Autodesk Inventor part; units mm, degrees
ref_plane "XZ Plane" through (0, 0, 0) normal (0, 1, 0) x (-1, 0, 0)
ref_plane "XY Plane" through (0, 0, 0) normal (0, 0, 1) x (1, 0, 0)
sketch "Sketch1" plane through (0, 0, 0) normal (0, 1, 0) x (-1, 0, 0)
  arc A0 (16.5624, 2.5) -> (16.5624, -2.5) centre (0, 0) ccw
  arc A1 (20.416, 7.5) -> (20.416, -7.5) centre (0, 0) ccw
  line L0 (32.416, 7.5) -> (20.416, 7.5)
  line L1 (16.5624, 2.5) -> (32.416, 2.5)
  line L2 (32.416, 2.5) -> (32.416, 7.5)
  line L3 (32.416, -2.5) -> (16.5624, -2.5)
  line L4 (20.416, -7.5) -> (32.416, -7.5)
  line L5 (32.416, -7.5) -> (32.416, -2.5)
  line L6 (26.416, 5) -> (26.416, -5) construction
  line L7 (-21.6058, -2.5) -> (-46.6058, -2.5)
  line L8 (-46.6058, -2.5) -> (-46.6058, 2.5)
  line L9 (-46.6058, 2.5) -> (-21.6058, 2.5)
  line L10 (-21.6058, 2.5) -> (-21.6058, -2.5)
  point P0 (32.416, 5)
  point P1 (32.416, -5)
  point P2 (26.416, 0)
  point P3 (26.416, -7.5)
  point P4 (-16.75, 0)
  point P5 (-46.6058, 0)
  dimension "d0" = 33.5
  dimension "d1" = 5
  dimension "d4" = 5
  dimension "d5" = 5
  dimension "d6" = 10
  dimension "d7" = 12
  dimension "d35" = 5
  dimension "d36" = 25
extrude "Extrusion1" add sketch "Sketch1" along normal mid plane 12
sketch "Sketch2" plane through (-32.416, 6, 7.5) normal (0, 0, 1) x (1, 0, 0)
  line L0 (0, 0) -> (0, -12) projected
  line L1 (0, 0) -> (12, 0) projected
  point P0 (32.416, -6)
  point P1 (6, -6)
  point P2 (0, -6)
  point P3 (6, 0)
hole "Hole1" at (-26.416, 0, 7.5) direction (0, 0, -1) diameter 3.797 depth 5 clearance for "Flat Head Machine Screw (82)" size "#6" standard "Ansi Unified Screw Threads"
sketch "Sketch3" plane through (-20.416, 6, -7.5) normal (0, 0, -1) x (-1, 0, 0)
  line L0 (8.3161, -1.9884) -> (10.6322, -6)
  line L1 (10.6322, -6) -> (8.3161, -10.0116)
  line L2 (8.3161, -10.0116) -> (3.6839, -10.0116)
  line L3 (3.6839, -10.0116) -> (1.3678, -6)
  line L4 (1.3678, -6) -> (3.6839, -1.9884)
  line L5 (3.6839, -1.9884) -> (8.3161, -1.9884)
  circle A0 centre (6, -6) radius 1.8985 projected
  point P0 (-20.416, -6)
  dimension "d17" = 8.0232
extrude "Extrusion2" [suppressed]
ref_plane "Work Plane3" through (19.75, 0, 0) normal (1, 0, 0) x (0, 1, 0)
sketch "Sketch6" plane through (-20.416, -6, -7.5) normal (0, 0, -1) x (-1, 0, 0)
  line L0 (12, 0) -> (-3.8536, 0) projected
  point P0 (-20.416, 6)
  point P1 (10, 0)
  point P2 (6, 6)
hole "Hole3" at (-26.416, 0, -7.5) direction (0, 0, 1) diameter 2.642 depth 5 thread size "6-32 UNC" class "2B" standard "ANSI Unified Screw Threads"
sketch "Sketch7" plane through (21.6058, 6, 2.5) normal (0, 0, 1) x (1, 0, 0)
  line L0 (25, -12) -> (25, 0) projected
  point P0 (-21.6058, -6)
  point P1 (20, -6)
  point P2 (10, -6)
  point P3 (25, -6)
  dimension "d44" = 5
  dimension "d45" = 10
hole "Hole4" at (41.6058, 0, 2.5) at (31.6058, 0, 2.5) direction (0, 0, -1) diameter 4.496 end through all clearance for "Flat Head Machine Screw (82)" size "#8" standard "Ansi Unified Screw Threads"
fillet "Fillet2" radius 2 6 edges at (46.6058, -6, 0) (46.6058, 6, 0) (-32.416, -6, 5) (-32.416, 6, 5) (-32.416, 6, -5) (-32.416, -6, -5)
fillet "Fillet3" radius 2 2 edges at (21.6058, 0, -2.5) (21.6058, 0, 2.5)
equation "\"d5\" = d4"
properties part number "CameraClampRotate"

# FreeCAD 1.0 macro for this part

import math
import FreeCAD as App
import Part
import Sketcher


def edges_at(feature, points):
    """Names of the edges that pass closest to the given points."""
    edges = feature.Shape.Edges
    near = lambda p: min(range(len(edges)), key=lambda i: edges[i].distToShape(Part.Vertex(*p))[0])
    return sorted({f"Edge{near(p) + 1}" for p in points})

doc = App.newDocument("Part")
body = doc.addObject("PartDesign::Body", "Body")

sketch1 = body.newObject("Sketcher::SketchObject", "Sketch")
sketch1.AttachmentSupport = (doc.getObject("XZ_Plane"), [""])
sketch1.MapMode = "FlatFace"
sketch1.addGeometry([
    Part.ArcOfCircle(Part.Circle(App.Vector(0, 0, 0), App.Vector(0, 0, 1), 17), math.radians(-171), math.radians(171)),
    Part.LineSegment(App.Vector(-17, 2, 0), App.Vector(-32, 2, 0)),
    Part.LineSegment(App.Vector(-32, 2, 0), App.Vector(-32, 8, 0)),
    Part.LineSegment(App.Vector(-32, 8, 0), App.Vector(-20, 8, 0)),
    Part.ArcOfCircle(Part.Circle(App.Vector(0, 0, 0), App.Vector(0, 0, 1), 22), math.radians(7), math.radians(160)),
    Part.LineSegment(App.Vector(22, 2, 0), App.Vector(47, 2, 0)),
    Part.LineSegment(App.Vector(47, 2, 0), App.Vector(47, -2, 0)),
    Part.LineSegment(App.Vector(47, -2, 0), App.Vector(22, -2, 0)),
    Part.ArcOfCircle(Part.Circle(App.Vector(0, 0, 0), App.Vector(0, 0, 1), 22), math.radians(-160), math.radians(-7)),
    Part.LineSegment(App.Vector(-20, -8, 0), App.Vector(-32, -8, 0)),
    Part.LineSegment(App.Vector(-32, -8, 0), App.Vector(-32, -2, 0)),
    Part.LineSegment(App.Vector(-32, -2, 0), App.Vector(-17, -2, 0)),
], False)
sketch1.addConstraint([
    Sketcher.Constraint("Coincident", 0, 2, 1, 1),
    Sketcher.Constraint("Coincident", 1, 2, 2, 1),
    Sketcher.Constraint("Coincident", 2, 2, 3, 1),
    Sketcher.Constraint("Coincident", 3, 2, 4, 2),
    Sketcher.Constraint("Coincident", 4, 1, 5, 1),
    Sketcher.Constraint("Coincident", 5, 2, 6, 1),
    Sketcher.Constraint("Coincident", 6, 2, 7, 1),
    Sketcher.Constraint("Coincident", 7, 2, 8, 2),
    Sketcher.Constraint("Coincident", 8, 1, 9, 1),
    Sketcher.Constraint("Coincident", 9, 2, 10, 1),
    Sketcher.Constraint("Coincident", 10, 2, 11, 1),
    Sketcher.Constraint("Coincident", 11, 2, 0, 1),
    Sketcher.Constraint("Horizontal", 1),
    Sketcher.Constraint("Vertical", 2),
    Sketcher.Constraint("Horizontal", 3),
    Sketcher.Constraint("Horizontal", 5),
    Sketcher.Constraint("Vertical", 6),
    Sketcher.Constraint("Horizontal", 7),
    Sketcher.Constraint("Horizontal", 9),
    Sketcher.Constraint("Vertical", 10),
    Sketcher.Constraint("Horizontal", 11),
    Sketcher.Constraint("Coincident", 0, 3, -1, 1),
    Sketcher.Constraint("Coincident", 4, 3, -1, 1),
    Sketcher.Constraint("Coincident", 8, 3, -1, 1),
    Sketcher.Constraint("Equal", 4, 8),
    Sketcher.Constraint("Symmetric", 2, 2, 9, 2, -1),
    Sketcher.Constraint("Horizontal", 1, 2, 4, 1),
    Sketcher.Constraint("Horizontal", 7, 2, 10, 2),
    Sketcher.Constraint("Vertical", 4, 1, 7, 2),
    Sketcher.Constraint("Equal", 2, 6),
    Sketcher.Constraint("DistanceX", 3, 1, 3, 2, 12.0),
    Sketcher.Constraint("DistanceX", 5, 1, 5, 2, 25.0),
    Sketcher.Constraint("DistanceY", 2, 1, 2, 2, 5.0),
    Sketcher.Constraint("Radius", 0, 16.75),
    Sketcher.Constraint("Radius", 4, 21.75),
])
pad1 = body.newObject("PartDesign::Pad", "Pad")
pad1.Profile = sketch1
pad1.Length = 12
pad1.Midplane = True

sketch2 = body.newObject("Sketcher::SketchObject", "Sketch001")
sketch2.AttachmentSupport = (doc.getObject("XY_Plane"), [""])
sketch2.MapMode = "FlatFace"
sketch2.AttachmentOffset = App.Placement(App.Vector(0, 0, 7.5), App.Rotation())
sketch2.addGeometry(Part.Circle(App.Vector(-26.4, 0, 0), App.Vector(0, 0, 1), 1.9), False)
sketch2.addConstraint([
    Sketcher.Constraint("PointOnObject", 0, 3, -1),
    Sketcher.Constraint("Diameter", 0, 3.797),
    Sketcher.Constraint("DistanceX", 0, 3, -1, 1, 26.416),
])
doc.recompute()
hole = body.newObject("PartDesign::Hole", "Hole")
hole.Profile = sketch2
hole.ThreadType = "None"
hole.Diameter = 3.797
hole.DepthType = "Dimension"
hole.Depth = 5
hole.DrillPoint = "Flat"

sketch3 = body.newObject("Sketcher::SketchObject", "Sketch002")
sketch3.AttachmentSupport = (doc.getObject("XY_Plane"), [""])
sketch3.MapMode = "FlatFace"
sketch3.AttachmentOffset = App.Placement(App.Vector(0, 0, -7.5), App.Rotation())
sketch3.addGeometry(Part.Circle(App.Vector(-26.4, 0, 0), App.Vector(0, 0, 1), 1.3), False)
sketch3.addConstraint([
    Sketcher.Constraint("PointOnObject", 0, 3, -1),
    Sketcher.Constraint("Diameter", 0, 2.642),
    Sketcher.Constraint("DistanceX", 0, 3, -1, 1, 26.416),
])
doc.recompute()
hole2 = body.newObject("PartDesign::Hole", "Hole001")
hole2.Profile = sketch3
hole2.ThreadType = "None"
hole2.Diameter = 2.642
hole2.DepthType = "Dimension"
hole2.Depth = 5
hole2.DrillPoint = "Flat"
hole2.Reversed = True

sketch4 = body.newObject("Sketcher::SketchObject", "Sketch003")
sketch4.AttachmentSupport = (doc.getObject("XY_Plane"), [""])
sketch4.MapMode = "FlatFace"
sketch4.AttachmentOffset = App.Placement(App.Vector(0, 0, 2.5), App.Rotation())
sketch4.addGeometry([
    Part.Circle(App.Vector(41.6, 0, 0), App.Vector(0, 0, 1), 2.2),
    Part.Circle(App.Vector(31.6, 0, 0), App.Vector(0, 0, 1), 2.2),
], False)
sketch4.addConstraint([
    Sketcher.Constraint("Equal", 0, 1),
    Sketcher.Constraint("PointOnObject", 0, 3, -1),
    Sketcher.Constraint("PointOnObject", 1, 3, -1),
    Sketcher.Constraint("Diameter", 0, 4.496),
    Sketcher.Constraint("DistanceX", 1, 3, 0, 3, 10.0),
    Sketcher.Constraint("DistanceX", -1, 1, 0, 3, 41.6058),
])
doc.recompute()
hole3 = body.newObject("PartDesign::Hole", "Hole002")
hole3.Profile = sketch4
hole3.ThreadType = "None"
hole3.Diameter = 4.496
hole3.DepthType = "ThroughAll"
doc.recompute()

fillet = body.newObject("PartDesign::Fillet", "Fillet")
fillet.Base = (hole3, edges_at(hole3, [
    (46.606, -6, 0),
    (46.606, 6, 0),
    (-32.416, -6, 5),
    (-32.416, 6, 5),
    (-32.416, 6, -5),
    (-32.416, -6, -5),
]))
fillet.Radius = 2
doc.recompute()

fillet2 = body.newObject("PartDesign::Fillet", "Fillet001")
fillet2.Base = (fillet, edges_at(fillet, [(21.606, 0, -2.5), (21.606, 0, 2.5)]))
fillet2.Radius = 2

doc.recompute()
